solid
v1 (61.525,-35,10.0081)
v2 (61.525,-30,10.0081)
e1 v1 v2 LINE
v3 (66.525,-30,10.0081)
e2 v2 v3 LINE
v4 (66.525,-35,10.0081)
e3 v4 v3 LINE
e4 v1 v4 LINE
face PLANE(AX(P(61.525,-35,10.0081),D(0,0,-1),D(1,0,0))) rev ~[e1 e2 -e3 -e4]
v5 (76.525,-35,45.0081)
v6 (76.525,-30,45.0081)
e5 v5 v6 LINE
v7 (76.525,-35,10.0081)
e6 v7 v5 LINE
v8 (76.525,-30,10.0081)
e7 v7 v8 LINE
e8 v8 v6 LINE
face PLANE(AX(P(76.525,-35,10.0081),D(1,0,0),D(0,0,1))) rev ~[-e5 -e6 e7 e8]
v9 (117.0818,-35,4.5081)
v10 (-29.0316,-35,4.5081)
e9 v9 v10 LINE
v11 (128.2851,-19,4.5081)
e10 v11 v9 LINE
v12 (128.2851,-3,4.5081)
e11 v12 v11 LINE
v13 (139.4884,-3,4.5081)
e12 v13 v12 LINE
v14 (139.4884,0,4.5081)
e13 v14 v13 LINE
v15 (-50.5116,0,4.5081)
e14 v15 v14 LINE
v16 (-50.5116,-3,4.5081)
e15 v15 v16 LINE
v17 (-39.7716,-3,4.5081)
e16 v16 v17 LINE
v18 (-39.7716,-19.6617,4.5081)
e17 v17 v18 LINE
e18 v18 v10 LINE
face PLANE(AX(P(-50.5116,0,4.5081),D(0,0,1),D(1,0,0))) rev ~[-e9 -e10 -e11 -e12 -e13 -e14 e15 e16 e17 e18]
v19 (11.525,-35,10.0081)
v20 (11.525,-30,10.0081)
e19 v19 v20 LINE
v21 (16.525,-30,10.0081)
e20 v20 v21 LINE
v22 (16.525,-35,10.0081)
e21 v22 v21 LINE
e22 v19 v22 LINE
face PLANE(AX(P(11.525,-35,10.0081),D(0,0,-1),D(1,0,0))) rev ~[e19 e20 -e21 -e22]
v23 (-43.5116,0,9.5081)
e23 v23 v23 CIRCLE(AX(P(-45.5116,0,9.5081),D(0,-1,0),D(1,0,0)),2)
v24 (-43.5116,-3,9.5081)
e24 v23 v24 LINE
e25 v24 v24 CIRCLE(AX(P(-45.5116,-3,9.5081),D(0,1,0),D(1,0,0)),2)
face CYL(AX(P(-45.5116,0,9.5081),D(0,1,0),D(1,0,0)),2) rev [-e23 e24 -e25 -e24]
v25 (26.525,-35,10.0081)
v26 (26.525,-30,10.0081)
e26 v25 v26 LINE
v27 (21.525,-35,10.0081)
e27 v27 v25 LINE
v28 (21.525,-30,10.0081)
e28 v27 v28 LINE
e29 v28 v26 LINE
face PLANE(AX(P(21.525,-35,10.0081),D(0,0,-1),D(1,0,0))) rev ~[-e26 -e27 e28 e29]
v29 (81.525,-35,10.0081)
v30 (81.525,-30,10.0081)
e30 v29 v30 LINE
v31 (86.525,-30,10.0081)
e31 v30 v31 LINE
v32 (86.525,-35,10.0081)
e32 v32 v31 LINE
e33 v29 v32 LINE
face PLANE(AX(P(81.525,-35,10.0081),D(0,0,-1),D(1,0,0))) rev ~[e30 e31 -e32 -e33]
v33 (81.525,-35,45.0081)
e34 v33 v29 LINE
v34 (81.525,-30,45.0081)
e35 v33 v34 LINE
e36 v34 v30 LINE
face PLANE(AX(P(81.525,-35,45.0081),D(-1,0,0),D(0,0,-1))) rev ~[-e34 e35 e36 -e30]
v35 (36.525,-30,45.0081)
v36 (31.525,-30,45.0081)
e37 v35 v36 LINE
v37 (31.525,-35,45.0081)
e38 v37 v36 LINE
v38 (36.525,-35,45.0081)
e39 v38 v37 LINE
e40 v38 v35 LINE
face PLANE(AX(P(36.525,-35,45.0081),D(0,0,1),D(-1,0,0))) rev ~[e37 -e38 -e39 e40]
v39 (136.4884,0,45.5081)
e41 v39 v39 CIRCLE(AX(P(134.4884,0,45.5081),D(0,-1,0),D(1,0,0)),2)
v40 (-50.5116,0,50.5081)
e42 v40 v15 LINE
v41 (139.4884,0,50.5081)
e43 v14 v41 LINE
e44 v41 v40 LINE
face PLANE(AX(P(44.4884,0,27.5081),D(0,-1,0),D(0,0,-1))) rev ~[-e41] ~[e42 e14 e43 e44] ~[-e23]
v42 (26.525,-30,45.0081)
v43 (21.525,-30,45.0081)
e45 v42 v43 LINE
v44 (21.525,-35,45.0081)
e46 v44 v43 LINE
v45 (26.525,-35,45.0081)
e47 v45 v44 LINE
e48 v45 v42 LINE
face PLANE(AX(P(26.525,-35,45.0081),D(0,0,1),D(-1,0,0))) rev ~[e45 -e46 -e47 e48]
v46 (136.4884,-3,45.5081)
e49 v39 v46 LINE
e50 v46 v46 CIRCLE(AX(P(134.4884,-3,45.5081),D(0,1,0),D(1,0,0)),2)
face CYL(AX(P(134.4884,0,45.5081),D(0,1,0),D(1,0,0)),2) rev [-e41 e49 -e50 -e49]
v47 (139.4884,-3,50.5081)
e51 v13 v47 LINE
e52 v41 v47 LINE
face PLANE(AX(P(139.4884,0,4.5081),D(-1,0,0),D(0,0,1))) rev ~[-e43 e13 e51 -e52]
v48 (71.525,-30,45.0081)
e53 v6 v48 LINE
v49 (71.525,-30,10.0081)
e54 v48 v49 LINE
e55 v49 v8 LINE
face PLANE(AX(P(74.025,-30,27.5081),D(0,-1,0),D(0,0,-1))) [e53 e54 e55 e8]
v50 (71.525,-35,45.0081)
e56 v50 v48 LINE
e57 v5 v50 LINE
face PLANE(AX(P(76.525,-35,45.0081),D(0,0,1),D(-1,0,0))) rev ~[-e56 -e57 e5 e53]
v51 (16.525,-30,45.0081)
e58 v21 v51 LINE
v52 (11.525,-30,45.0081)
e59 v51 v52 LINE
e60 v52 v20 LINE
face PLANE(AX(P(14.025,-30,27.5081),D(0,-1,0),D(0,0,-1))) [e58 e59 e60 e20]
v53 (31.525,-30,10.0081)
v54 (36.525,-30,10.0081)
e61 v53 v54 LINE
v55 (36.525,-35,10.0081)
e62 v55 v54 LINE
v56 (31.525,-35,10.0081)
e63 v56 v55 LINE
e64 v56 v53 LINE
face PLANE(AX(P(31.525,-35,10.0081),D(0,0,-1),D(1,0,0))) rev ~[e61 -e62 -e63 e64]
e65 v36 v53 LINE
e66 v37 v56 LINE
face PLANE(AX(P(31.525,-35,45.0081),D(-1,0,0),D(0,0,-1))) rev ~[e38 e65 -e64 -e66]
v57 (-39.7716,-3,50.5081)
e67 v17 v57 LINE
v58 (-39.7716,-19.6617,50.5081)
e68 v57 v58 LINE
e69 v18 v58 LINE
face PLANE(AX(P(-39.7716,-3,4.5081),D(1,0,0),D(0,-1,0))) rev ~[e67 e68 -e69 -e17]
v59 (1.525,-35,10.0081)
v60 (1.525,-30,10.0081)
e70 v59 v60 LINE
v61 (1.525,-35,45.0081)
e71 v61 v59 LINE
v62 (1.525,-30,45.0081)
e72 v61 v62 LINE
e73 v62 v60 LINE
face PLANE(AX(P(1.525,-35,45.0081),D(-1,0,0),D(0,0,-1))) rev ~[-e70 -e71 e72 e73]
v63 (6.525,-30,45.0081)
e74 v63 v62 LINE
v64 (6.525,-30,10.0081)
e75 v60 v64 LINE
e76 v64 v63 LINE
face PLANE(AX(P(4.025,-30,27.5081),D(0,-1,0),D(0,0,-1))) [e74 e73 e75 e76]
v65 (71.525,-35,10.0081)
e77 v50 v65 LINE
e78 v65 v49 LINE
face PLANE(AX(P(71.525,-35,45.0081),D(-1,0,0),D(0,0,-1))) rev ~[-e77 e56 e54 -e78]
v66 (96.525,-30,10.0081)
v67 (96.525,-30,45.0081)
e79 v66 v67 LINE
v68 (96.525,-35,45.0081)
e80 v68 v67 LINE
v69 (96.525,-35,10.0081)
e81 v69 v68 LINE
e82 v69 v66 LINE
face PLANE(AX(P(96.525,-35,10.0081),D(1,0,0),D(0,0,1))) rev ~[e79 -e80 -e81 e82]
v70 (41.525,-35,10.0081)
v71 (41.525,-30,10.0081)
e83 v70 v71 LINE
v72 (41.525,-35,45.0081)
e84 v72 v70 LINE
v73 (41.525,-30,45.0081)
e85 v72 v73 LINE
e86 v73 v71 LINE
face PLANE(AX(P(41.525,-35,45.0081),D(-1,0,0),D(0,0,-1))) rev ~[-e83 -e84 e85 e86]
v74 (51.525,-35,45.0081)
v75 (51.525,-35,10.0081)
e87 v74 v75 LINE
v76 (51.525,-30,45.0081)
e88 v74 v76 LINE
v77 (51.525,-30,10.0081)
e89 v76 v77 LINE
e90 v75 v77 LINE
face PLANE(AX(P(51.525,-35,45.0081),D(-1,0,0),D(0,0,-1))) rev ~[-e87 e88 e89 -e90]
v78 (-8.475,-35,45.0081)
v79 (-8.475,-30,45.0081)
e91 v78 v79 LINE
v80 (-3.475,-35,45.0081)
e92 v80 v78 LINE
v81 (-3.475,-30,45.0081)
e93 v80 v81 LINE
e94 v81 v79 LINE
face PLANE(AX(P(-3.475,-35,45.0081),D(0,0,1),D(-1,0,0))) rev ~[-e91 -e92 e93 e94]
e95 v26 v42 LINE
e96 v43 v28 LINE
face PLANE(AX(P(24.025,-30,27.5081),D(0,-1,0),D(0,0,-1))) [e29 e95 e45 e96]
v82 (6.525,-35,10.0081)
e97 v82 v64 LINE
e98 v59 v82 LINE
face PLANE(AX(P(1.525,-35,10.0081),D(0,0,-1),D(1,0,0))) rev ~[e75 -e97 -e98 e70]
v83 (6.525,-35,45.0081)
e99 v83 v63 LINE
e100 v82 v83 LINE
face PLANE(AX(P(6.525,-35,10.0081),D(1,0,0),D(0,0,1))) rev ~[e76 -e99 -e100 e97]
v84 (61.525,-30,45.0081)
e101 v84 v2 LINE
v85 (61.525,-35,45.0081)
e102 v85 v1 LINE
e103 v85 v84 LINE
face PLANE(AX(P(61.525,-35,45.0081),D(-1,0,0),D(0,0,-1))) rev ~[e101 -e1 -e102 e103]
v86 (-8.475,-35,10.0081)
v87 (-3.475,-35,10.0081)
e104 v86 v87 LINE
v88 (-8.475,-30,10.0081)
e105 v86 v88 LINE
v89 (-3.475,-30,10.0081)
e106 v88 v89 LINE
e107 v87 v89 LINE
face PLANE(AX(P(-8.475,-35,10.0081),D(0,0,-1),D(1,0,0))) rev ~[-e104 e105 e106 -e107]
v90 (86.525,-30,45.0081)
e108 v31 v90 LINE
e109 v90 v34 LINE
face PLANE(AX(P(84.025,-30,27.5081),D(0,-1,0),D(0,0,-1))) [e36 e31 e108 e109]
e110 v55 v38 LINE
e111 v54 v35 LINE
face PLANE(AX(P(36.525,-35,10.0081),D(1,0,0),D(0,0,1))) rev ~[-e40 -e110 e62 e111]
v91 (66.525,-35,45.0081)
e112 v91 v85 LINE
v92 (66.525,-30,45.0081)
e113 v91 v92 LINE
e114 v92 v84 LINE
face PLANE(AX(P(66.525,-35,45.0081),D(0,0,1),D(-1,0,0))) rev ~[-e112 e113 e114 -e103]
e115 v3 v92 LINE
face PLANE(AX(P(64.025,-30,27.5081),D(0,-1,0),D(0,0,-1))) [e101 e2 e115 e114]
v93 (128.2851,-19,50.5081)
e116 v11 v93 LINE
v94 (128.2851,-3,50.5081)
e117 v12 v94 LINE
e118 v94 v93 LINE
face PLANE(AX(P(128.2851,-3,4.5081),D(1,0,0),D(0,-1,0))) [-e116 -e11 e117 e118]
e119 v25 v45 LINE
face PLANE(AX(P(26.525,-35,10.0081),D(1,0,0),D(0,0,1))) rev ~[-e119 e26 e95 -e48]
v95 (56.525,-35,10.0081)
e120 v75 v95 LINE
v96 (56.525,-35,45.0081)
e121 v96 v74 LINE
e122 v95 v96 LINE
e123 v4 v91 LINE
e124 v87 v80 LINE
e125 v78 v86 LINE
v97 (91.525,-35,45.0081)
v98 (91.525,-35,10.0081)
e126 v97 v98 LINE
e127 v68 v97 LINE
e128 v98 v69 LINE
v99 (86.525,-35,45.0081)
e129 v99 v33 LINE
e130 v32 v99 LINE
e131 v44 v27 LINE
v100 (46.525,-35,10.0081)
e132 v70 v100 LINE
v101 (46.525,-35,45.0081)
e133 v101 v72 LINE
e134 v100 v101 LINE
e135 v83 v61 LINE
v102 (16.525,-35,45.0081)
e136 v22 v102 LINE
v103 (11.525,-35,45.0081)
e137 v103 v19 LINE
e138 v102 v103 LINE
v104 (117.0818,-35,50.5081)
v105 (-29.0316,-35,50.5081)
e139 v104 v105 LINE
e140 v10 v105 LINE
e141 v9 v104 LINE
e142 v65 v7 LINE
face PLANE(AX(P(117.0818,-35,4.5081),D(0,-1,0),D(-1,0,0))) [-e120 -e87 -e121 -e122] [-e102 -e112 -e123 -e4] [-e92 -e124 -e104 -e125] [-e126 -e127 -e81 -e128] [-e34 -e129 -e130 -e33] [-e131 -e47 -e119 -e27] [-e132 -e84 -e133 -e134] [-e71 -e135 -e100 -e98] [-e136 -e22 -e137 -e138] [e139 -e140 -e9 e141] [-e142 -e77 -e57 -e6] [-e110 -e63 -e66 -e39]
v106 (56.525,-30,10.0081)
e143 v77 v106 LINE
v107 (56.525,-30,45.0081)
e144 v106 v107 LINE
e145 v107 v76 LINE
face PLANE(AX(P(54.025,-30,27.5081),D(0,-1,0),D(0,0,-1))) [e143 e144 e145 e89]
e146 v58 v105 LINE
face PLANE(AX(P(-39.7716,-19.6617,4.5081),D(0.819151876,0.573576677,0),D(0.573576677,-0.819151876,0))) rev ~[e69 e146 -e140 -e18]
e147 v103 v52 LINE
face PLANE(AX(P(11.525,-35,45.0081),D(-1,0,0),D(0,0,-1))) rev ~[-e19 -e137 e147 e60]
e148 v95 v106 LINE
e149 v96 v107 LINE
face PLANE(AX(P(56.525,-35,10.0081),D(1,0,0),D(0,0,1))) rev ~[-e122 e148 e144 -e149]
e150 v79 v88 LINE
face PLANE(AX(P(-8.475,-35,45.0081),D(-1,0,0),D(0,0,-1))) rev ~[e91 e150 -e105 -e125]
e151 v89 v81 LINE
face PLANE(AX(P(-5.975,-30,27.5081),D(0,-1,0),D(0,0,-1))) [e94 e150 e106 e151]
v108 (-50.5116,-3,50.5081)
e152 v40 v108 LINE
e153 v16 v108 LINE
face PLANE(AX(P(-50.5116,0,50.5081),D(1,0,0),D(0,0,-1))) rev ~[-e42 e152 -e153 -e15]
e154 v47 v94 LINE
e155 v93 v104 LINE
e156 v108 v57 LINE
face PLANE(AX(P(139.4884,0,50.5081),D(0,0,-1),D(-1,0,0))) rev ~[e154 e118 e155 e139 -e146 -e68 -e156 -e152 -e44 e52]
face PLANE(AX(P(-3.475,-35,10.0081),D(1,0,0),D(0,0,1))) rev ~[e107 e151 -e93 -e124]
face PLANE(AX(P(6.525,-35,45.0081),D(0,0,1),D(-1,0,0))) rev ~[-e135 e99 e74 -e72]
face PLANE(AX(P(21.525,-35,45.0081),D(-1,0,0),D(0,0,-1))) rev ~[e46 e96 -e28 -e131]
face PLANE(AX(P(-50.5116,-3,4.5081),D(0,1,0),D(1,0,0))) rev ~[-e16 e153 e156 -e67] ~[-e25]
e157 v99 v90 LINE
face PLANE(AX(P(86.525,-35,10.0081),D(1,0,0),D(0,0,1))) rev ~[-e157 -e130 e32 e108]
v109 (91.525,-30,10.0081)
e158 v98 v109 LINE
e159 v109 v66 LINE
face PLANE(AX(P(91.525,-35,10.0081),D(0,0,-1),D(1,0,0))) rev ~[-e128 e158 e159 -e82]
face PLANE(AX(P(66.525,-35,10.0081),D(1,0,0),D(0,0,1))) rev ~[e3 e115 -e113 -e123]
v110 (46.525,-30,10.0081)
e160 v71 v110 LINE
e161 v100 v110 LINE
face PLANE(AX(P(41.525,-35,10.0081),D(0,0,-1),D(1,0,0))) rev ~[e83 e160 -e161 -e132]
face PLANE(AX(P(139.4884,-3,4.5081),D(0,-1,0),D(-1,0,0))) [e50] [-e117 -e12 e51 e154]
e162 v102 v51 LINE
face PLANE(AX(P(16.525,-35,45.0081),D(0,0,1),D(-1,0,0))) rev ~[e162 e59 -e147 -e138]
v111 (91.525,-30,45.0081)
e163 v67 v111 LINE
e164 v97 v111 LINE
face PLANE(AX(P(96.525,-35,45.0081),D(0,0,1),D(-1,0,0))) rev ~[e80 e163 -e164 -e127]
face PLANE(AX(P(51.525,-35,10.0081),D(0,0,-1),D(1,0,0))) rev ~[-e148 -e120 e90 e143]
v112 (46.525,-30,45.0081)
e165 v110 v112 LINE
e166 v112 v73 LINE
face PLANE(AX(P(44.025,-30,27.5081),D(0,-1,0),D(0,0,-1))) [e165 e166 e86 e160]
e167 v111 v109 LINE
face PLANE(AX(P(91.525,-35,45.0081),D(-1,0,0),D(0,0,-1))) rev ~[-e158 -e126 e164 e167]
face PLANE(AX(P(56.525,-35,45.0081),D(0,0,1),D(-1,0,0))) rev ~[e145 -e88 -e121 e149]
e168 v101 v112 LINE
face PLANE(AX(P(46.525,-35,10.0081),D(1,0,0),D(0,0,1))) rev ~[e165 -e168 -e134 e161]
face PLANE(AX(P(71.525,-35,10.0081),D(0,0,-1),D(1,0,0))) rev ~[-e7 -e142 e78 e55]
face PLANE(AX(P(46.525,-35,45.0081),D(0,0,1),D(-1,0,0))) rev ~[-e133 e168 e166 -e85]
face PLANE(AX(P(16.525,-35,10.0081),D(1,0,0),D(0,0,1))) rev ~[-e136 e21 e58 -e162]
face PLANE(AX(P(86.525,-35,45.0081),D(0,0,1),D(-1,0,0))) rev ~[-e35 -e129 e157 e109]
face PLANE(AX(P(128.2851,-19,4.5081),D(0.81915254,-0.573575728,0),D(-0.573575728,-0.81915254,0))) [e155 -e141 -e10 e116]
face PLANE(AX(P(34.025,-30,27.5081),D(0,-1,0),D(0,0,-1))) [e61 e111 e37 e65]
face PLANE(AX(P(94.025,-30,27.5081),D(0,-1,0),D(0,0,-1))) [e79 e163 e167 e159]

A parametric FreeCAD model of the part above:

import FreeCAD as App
import Part
import Sketcher

V = App.Vector
Q = App.Units.Quantity


def add_polygon(sketch, points):
    """Adds a closed chain of lines whose ends are joined by coincident constraints."""
    first, n = sketch.GeometryCount, len(points)
    for a, b in zip(points, points[1:] + points[:1]):
        sketch.addGeometry(Part.LineSegment(App.Vector(*a, 0), App.Vector(*b, 0)), False)
    for i in range(n):
        sketch.addConstraint(Sketcher.Constraint("Coincident", first + i, 2, first + (i + 1) % n, 1))

doc = App.newDocument("Part")
body = doc.addObject("PartDesign::Body", "Body")

sketch1 = body.newObject("Sketcher::SketchObject", "Sketch")
sketch1.AttachmentSupport = (doc.getObject("XZ_Plane"), [""])
sketch1.MapMode = "FlatFace"
add_polygon(sketch1, [(-50.5, 50.5), (-50.5, 4.5), (139.5, 4.5), (139.5, 50.5)])
sketch1.addGeometry(Part.Circle(V(-45.5, 9.5, 0), V(0, 0, 1), 2), False)
sketch1.addGeometry(Part.Circle(V(134.5, 45.5, 0), V(0, 0, 1), 2), False)
sketch1.addConstraint([
    Sketcher.Constraint("Vertical", 0),
    Sketcher.Constraint("Horizontal", 1),
    Sketcher.Constraint("Vertical", 2),
    Sketcher.Constraint("Horizontal", 3),
    Sketcher.Constraint("Equal", 4, 5),
    Sketcher.Constraint("Diameter", 4, 4.0),
    Sketcher.Constraint("DistanceX", 1, 1, 1, 2, 190.0),
    Sketcher.Constraint("DistanceY", 0, 2, 0, 1, 46.0),
    Sketcher.Constraint("DistanceX", 4, 3, 5, 3, 180.0),
    Sketcher.Constraint("DistanceY", 4, 3, 5, 3, 36.0),
    Sketcher.Constraint("DistanceX", 0, 2, 4, 3, 5.0),
    Sketcher.Constraint("DistanceY", 0, 2, 4, 3, 5.0),
    Sketcher.Constraint("DistanceY", -1, 1, 4, 3, 9.508),
    Sketcher.Constraint("DistanceX", 4, 3, -1, 1, 45.5116),
])
pad1 = body.newObject("PartDesign::Pad", "Pad")
pad1.Profile = sketch1
pad1.Length = 35

sketch2 = body.newObject("Sketcher::SketchObject", "Sketch001")
sketch2.AttachmentSupport = (doc.getObject("XY_Plane"), [""])
sketch2.MapMode = "FlatFace"
sketch2.AttachmentOffset = App.Placement(V(0, 0, 4.5081), App.Rotation())
add_polygon(sketch2, [(-56.5, 0), (-50.5, 0), (-50.5, -3), (-39.8, -3), (-39.8, -19.7), (-29, -35), (117.1, -35), (128.3, -19), (128.3, -3), (139.5, -3), (139.5, 0), (145.2, 0), (145.2, -41.2), (-56.5, -41.2)])
sketch2.addConstraint([
    Sketcher.Constraint("Horizontal", 0),
    Sketcher.Constraint("Vertical", 1),
    Sketcher.Constraint("Horizontal", 2),
    Sketcher.Constraint("Vertical", 3),
    Sketcher.Constraint("Horizontal", 5),
    Sketcher.Constraint("Vertical", 7),
    Sketcher.Constraint("Horizontal", 8),
    Sketcher.Constraint("Vertical", 9),
    Sketcher.Constraint("Horizontal", 10),
    Sketcher.Constraint("Vertical", 11),
    Sketcher.Constraint("Horizontal", 12),
    Sketcher.Constraint("Vertical", 13),
    Sketcher.Constraint("PointOnObject", 0, 2, -1),
    Sketcher.Constraint("PointOnObject", 9, 2, -1),
    Sketcher.Constraint("Horizontal", 2, 2, 7, 2),
    Sketcher.Constraint("DistanceY", 1, 2, 1, 1, 3.0),
    Sketcher.Constraint("DistanceY", 7, 1, 7, 2, 16.0),
    Sketcher.Constraint("Angle", 4, Q("-55 deg")),
    Sketcher.Constraint("Angle", 6, Q("55 deg")),
    Sketcher.Constraint("DistanceY", 4, 2, -1, 1, 35.0),
    Sketcher.Constraint("DistanceX", 2, 1, 2, 2, 10.74),
    Sketcher.Constraint("DistanceX", 3, 2, 4, 2, 10.74),
    Sketcher.Constraint("DistanceX", 4, 2, 8, 2, 168.52),
    Sketcher.Constraint("DistanceX", 0, 1, 0, 2, 5.9714),
    Sketcher.Constraint("DistanceX", 5, 1, 5, 2, 146.1134),
    Sketcher.Constraint("DistanceX", 10, 1, 10, 2, 5.6753),
    Sketcher.Constraint("DistanceY", 11, 2, 11, 1, 41.1883),
    Sketcher.Constraint("DistanceX", -1, 1, 6, 2, 128.285),
])
pocket1 = body.newObject("PartDesign::Pocket", "Pocket")
pocket1.Profile = sketch2
pocket1.Length = 46
pocket1.Reversed = True

sketch3 = body.newObject("Sketcher::SketchObject", "Sketch002")
sketch3.AttachmentSupport = (doc.getObject("XZ_Plane"), [""])
sketch3.MapMode = "FlatFace"
sketch3.AttachmentOffset = App.Placement(V(0, 0, 35), App.Rotation())
add_polygon(sketch3, [(41.5, 45), (41.5, 10), (46.5, 10), (46.5, 45)])
add_polygon(sketch3, [(51.5, 45), (51.5, 10), (56.5, 10), (56.5, 45)])
add_polygon(sketch3, [(61.5, 45), (61.5, 10), (66.5, 10), (66.5, 45)])
add_polygon(sketch3, [(71.5, 45), (71.5, 10), (76.5, 10), (76.5, 45)])
add_polygon(sketch3, [(81.5, 45), (81.5, 10), (86.5, 10), (86.5, 45)])
add_polygon(sketch3, [(31.5, 45), (31.5, 10), (36.5, 10), (36.5, 45)])
add_polygon(sketch3, [(21.5, 45), (21.5, 10), (26.5, 10), (26.5, 45)])
add_polygon(sketch3, [(11.5, 45), (11.5, 10), (16.5, 10), (16.5, 45)])
add_polygon(sketch3, [(1.5, 45), (1.5, 10), (6.5, 10), (6.5, 45)])
add_polygon(sketch3, [(-8.5, 45), (-8.5, 10), (-3.5, 10), (-3.5, 45)])
add_polygon(sketch3, [(91.5, 45), (91.5, 10), (96.5, 10), (96.5, 45)])
sketch3.addConstraint([
    Sketcher.Constraint("Vertical", 0),
    Sketcher.Constraint("Horizontal", 1),
    Sketcher.Constraint("Vertical", 2),
    Sketcher.Constraint("Horizontal", 3),
    Sketcher.Constraint("Vertical", 4),
    Sketcher.Constraint("Horizontal", 5),
    Sketcher.Constraint("Vertical", 6),
    Sketcher.Constraint("Horizontal", 7),
    Sketcher.Constraint("Vertical", 8),
    Sketcher.Constraint("Horizontal", 9),
    Sketcher.Constraint("Vertical", 10),
    Sketcher.Constraint("Horizontal", 11),
    Sketcher.Constraint("Vertical", 12),
    Sketcher.Constraint("Horizontal", 13),
    Sketcher.Constraint("Vertical", 14),
    Sketcher.Constraint("Horizontal", 15),
    Sketcher.Constraint("Vertical", 16),
    Sketcher.Constraint("Horizontal", 17),
    Sketcher.Constraint("Vertical", 18),
    Sketcher.Constraint("Horizontal", 19),
    Sketcher.Constraint("Vertical", 20),
    Sketcher.Constraint("Horizontal", 21),
    Sketcher.Constraint("Vertical", 22),
    Sketcher.Constraint("Horizontal", 23),
    Sketcher.Constraint("Vertical", 24),
    Sketcher.Constraint("Horizontal", 25),
    Sketcher.Constraint("Vertical", 26),
    Sketcher.Constraint("Horizontal", 27),
    Sketcher.Constraint("Vertical", 28),
    Sketcher.Constraint("Horizontal", 29),
    Sketcher.Constraint("Vertical", 30),
    Sketcher.Constraint("Horizontal", 31),
    Sketcher.Constraint("Vertical", 32),
    Sketcher.Constraint("Horizontal", 33),
    Sketcher.Constraint("Vertical", 34),
    Sketcher.Constraint("Horizontal", 35),
    Sketcher.Constraint("Vertical", 36),
    Sketcher.Constraint("Horizontal", 37),
    Sketcher.Constraint("Vertical", 38),
    Sketcher.Constraint("Horizontal", 39),
    Sketcher.Constraint("Vertical", 40),
    Sketcher.Constraint("Horizontal", 41),
    Sketcher.Constraint("Vertical", 42),
    Sketcher.Constraint("Horizontal", 43),
    Sketcher.Constraint("Horizontal", 1, 2, 4, 2),
    Sketcher.Constraint("Horizontal", 3, 2, 6, 2),
    Sketcher.Constraint("Horizontal", 5, 2, 8, 2),
    Sketcher.Constraint("Horizontal", 7, 2, 10, 2),
    Sketcher.Constraint("Horizontal", 9, 2, 12, 2),
    Sketcher.Constraint("Horizontal", 11, 2, 14, 2),
    Sketcher.Constraint("Horizontal", 13, 2, 16, 2),
    Sketcher.Constraint("Horizontal", 15, 2, 18, 2),
    Sketcher.Constraint("Horizontal", 17, 2, 20, 2),
    Sketcher.Constraint("Horizontal", 19, 2, 22, 2),
    Sketcher.Constraint("Horizontal", 21, 2, 24, 2),
    Sketcher.Constraint("Horizontal", 23, 2, 26, 2),
    Sketcher.Constraint("Horizontal", 25, 2, 28, 2),
    Sketcher.Constraint("Horizontal", 27, 2, 30, 2),
    Sketcher.Constraint("Horizontal", 29, 2, 32, 2),
    Sketcher.Constraint("Horizontal", 31, 2, 34, 2),
    Sketcher.Constraint("Horizontal", 33, 2, 36, 2),
    Sketcher.Constraint("Horizontal", 35, 2, 38, 2),
    Sketcher.Constraint("Horizontal", 37, 2, 40, 2),
    Sketcher.Constraint("Horizontal", 39, 2, 42, 2),
    Sketcher.Constraint("Equal", 3, 5),
    Sketcher.Constraint("Equal", 7, 9),
    Sketcher.Constraint("Equal", 11, 13),
    Sketcher.Constraint("Equal", 15, 17),
    Sketcher.Constraint("Equal", 19, 21),
    Sketcher.Constraint("Equal", 23, 25),
    Sketcher.Constraint("Equal", 27, 29),
    Sketcher.Constraint("Equal", 31, 33),
    Sketcher.Constraint("Equal", 35, 37),
    Sketcher.Constraint("Equal", 39, 41),
    Sketcher.Constraint("DistanceX", 1, 1, 1, 2, 5.0),
    Sketcher.Constraint("DistanceY", 0, 2, 0, 1, 35.0),
    Sketcher.Constraint("DistanceX", 1, 2, 4, 2, 5.0),
    Sketcher.Constraint("DistanceX", 5, 2, 8, 2, 5.0),
    Sketcher.Constraint("DistanceX", 9, 2, 12, 2, 5.0),
    Sketcher.Constraint("DistanceX", 13, 2, 16, 2, 5.0),
    Sketcher.Constraint("DistanceX", 20, 2, 0, 2, 10.0),
    Sketcher.Constraint("DistanceX", 24, 2, 20, 2, 10.0),
    Sketcher.Constraint("DistanceX", 28, 2, 24, 2, 10.0),
    Sketcher.Constraint("DistanceX", 32, 2, 28, 2, 10.0),
    Sketcher.Constraint("DistanceX", 36, 2, 32, 2, 10.0),
    Sketcher.Constraint("DistanceX", 17, 2, 40, 2, 5.0),
    Sketcher.Constraint("DistanceX", -1, 1, 0, 2, 41.525),
    Sketcher.Constraint("DistanceY", -1, 1, 0, 2, 10.008),
])
pocket2 = body.newObject("PartDesign::Pocket", "Pocket001")
pocket2.Profile = sketch3
pocket2.Length = 5

doc.recompute()
